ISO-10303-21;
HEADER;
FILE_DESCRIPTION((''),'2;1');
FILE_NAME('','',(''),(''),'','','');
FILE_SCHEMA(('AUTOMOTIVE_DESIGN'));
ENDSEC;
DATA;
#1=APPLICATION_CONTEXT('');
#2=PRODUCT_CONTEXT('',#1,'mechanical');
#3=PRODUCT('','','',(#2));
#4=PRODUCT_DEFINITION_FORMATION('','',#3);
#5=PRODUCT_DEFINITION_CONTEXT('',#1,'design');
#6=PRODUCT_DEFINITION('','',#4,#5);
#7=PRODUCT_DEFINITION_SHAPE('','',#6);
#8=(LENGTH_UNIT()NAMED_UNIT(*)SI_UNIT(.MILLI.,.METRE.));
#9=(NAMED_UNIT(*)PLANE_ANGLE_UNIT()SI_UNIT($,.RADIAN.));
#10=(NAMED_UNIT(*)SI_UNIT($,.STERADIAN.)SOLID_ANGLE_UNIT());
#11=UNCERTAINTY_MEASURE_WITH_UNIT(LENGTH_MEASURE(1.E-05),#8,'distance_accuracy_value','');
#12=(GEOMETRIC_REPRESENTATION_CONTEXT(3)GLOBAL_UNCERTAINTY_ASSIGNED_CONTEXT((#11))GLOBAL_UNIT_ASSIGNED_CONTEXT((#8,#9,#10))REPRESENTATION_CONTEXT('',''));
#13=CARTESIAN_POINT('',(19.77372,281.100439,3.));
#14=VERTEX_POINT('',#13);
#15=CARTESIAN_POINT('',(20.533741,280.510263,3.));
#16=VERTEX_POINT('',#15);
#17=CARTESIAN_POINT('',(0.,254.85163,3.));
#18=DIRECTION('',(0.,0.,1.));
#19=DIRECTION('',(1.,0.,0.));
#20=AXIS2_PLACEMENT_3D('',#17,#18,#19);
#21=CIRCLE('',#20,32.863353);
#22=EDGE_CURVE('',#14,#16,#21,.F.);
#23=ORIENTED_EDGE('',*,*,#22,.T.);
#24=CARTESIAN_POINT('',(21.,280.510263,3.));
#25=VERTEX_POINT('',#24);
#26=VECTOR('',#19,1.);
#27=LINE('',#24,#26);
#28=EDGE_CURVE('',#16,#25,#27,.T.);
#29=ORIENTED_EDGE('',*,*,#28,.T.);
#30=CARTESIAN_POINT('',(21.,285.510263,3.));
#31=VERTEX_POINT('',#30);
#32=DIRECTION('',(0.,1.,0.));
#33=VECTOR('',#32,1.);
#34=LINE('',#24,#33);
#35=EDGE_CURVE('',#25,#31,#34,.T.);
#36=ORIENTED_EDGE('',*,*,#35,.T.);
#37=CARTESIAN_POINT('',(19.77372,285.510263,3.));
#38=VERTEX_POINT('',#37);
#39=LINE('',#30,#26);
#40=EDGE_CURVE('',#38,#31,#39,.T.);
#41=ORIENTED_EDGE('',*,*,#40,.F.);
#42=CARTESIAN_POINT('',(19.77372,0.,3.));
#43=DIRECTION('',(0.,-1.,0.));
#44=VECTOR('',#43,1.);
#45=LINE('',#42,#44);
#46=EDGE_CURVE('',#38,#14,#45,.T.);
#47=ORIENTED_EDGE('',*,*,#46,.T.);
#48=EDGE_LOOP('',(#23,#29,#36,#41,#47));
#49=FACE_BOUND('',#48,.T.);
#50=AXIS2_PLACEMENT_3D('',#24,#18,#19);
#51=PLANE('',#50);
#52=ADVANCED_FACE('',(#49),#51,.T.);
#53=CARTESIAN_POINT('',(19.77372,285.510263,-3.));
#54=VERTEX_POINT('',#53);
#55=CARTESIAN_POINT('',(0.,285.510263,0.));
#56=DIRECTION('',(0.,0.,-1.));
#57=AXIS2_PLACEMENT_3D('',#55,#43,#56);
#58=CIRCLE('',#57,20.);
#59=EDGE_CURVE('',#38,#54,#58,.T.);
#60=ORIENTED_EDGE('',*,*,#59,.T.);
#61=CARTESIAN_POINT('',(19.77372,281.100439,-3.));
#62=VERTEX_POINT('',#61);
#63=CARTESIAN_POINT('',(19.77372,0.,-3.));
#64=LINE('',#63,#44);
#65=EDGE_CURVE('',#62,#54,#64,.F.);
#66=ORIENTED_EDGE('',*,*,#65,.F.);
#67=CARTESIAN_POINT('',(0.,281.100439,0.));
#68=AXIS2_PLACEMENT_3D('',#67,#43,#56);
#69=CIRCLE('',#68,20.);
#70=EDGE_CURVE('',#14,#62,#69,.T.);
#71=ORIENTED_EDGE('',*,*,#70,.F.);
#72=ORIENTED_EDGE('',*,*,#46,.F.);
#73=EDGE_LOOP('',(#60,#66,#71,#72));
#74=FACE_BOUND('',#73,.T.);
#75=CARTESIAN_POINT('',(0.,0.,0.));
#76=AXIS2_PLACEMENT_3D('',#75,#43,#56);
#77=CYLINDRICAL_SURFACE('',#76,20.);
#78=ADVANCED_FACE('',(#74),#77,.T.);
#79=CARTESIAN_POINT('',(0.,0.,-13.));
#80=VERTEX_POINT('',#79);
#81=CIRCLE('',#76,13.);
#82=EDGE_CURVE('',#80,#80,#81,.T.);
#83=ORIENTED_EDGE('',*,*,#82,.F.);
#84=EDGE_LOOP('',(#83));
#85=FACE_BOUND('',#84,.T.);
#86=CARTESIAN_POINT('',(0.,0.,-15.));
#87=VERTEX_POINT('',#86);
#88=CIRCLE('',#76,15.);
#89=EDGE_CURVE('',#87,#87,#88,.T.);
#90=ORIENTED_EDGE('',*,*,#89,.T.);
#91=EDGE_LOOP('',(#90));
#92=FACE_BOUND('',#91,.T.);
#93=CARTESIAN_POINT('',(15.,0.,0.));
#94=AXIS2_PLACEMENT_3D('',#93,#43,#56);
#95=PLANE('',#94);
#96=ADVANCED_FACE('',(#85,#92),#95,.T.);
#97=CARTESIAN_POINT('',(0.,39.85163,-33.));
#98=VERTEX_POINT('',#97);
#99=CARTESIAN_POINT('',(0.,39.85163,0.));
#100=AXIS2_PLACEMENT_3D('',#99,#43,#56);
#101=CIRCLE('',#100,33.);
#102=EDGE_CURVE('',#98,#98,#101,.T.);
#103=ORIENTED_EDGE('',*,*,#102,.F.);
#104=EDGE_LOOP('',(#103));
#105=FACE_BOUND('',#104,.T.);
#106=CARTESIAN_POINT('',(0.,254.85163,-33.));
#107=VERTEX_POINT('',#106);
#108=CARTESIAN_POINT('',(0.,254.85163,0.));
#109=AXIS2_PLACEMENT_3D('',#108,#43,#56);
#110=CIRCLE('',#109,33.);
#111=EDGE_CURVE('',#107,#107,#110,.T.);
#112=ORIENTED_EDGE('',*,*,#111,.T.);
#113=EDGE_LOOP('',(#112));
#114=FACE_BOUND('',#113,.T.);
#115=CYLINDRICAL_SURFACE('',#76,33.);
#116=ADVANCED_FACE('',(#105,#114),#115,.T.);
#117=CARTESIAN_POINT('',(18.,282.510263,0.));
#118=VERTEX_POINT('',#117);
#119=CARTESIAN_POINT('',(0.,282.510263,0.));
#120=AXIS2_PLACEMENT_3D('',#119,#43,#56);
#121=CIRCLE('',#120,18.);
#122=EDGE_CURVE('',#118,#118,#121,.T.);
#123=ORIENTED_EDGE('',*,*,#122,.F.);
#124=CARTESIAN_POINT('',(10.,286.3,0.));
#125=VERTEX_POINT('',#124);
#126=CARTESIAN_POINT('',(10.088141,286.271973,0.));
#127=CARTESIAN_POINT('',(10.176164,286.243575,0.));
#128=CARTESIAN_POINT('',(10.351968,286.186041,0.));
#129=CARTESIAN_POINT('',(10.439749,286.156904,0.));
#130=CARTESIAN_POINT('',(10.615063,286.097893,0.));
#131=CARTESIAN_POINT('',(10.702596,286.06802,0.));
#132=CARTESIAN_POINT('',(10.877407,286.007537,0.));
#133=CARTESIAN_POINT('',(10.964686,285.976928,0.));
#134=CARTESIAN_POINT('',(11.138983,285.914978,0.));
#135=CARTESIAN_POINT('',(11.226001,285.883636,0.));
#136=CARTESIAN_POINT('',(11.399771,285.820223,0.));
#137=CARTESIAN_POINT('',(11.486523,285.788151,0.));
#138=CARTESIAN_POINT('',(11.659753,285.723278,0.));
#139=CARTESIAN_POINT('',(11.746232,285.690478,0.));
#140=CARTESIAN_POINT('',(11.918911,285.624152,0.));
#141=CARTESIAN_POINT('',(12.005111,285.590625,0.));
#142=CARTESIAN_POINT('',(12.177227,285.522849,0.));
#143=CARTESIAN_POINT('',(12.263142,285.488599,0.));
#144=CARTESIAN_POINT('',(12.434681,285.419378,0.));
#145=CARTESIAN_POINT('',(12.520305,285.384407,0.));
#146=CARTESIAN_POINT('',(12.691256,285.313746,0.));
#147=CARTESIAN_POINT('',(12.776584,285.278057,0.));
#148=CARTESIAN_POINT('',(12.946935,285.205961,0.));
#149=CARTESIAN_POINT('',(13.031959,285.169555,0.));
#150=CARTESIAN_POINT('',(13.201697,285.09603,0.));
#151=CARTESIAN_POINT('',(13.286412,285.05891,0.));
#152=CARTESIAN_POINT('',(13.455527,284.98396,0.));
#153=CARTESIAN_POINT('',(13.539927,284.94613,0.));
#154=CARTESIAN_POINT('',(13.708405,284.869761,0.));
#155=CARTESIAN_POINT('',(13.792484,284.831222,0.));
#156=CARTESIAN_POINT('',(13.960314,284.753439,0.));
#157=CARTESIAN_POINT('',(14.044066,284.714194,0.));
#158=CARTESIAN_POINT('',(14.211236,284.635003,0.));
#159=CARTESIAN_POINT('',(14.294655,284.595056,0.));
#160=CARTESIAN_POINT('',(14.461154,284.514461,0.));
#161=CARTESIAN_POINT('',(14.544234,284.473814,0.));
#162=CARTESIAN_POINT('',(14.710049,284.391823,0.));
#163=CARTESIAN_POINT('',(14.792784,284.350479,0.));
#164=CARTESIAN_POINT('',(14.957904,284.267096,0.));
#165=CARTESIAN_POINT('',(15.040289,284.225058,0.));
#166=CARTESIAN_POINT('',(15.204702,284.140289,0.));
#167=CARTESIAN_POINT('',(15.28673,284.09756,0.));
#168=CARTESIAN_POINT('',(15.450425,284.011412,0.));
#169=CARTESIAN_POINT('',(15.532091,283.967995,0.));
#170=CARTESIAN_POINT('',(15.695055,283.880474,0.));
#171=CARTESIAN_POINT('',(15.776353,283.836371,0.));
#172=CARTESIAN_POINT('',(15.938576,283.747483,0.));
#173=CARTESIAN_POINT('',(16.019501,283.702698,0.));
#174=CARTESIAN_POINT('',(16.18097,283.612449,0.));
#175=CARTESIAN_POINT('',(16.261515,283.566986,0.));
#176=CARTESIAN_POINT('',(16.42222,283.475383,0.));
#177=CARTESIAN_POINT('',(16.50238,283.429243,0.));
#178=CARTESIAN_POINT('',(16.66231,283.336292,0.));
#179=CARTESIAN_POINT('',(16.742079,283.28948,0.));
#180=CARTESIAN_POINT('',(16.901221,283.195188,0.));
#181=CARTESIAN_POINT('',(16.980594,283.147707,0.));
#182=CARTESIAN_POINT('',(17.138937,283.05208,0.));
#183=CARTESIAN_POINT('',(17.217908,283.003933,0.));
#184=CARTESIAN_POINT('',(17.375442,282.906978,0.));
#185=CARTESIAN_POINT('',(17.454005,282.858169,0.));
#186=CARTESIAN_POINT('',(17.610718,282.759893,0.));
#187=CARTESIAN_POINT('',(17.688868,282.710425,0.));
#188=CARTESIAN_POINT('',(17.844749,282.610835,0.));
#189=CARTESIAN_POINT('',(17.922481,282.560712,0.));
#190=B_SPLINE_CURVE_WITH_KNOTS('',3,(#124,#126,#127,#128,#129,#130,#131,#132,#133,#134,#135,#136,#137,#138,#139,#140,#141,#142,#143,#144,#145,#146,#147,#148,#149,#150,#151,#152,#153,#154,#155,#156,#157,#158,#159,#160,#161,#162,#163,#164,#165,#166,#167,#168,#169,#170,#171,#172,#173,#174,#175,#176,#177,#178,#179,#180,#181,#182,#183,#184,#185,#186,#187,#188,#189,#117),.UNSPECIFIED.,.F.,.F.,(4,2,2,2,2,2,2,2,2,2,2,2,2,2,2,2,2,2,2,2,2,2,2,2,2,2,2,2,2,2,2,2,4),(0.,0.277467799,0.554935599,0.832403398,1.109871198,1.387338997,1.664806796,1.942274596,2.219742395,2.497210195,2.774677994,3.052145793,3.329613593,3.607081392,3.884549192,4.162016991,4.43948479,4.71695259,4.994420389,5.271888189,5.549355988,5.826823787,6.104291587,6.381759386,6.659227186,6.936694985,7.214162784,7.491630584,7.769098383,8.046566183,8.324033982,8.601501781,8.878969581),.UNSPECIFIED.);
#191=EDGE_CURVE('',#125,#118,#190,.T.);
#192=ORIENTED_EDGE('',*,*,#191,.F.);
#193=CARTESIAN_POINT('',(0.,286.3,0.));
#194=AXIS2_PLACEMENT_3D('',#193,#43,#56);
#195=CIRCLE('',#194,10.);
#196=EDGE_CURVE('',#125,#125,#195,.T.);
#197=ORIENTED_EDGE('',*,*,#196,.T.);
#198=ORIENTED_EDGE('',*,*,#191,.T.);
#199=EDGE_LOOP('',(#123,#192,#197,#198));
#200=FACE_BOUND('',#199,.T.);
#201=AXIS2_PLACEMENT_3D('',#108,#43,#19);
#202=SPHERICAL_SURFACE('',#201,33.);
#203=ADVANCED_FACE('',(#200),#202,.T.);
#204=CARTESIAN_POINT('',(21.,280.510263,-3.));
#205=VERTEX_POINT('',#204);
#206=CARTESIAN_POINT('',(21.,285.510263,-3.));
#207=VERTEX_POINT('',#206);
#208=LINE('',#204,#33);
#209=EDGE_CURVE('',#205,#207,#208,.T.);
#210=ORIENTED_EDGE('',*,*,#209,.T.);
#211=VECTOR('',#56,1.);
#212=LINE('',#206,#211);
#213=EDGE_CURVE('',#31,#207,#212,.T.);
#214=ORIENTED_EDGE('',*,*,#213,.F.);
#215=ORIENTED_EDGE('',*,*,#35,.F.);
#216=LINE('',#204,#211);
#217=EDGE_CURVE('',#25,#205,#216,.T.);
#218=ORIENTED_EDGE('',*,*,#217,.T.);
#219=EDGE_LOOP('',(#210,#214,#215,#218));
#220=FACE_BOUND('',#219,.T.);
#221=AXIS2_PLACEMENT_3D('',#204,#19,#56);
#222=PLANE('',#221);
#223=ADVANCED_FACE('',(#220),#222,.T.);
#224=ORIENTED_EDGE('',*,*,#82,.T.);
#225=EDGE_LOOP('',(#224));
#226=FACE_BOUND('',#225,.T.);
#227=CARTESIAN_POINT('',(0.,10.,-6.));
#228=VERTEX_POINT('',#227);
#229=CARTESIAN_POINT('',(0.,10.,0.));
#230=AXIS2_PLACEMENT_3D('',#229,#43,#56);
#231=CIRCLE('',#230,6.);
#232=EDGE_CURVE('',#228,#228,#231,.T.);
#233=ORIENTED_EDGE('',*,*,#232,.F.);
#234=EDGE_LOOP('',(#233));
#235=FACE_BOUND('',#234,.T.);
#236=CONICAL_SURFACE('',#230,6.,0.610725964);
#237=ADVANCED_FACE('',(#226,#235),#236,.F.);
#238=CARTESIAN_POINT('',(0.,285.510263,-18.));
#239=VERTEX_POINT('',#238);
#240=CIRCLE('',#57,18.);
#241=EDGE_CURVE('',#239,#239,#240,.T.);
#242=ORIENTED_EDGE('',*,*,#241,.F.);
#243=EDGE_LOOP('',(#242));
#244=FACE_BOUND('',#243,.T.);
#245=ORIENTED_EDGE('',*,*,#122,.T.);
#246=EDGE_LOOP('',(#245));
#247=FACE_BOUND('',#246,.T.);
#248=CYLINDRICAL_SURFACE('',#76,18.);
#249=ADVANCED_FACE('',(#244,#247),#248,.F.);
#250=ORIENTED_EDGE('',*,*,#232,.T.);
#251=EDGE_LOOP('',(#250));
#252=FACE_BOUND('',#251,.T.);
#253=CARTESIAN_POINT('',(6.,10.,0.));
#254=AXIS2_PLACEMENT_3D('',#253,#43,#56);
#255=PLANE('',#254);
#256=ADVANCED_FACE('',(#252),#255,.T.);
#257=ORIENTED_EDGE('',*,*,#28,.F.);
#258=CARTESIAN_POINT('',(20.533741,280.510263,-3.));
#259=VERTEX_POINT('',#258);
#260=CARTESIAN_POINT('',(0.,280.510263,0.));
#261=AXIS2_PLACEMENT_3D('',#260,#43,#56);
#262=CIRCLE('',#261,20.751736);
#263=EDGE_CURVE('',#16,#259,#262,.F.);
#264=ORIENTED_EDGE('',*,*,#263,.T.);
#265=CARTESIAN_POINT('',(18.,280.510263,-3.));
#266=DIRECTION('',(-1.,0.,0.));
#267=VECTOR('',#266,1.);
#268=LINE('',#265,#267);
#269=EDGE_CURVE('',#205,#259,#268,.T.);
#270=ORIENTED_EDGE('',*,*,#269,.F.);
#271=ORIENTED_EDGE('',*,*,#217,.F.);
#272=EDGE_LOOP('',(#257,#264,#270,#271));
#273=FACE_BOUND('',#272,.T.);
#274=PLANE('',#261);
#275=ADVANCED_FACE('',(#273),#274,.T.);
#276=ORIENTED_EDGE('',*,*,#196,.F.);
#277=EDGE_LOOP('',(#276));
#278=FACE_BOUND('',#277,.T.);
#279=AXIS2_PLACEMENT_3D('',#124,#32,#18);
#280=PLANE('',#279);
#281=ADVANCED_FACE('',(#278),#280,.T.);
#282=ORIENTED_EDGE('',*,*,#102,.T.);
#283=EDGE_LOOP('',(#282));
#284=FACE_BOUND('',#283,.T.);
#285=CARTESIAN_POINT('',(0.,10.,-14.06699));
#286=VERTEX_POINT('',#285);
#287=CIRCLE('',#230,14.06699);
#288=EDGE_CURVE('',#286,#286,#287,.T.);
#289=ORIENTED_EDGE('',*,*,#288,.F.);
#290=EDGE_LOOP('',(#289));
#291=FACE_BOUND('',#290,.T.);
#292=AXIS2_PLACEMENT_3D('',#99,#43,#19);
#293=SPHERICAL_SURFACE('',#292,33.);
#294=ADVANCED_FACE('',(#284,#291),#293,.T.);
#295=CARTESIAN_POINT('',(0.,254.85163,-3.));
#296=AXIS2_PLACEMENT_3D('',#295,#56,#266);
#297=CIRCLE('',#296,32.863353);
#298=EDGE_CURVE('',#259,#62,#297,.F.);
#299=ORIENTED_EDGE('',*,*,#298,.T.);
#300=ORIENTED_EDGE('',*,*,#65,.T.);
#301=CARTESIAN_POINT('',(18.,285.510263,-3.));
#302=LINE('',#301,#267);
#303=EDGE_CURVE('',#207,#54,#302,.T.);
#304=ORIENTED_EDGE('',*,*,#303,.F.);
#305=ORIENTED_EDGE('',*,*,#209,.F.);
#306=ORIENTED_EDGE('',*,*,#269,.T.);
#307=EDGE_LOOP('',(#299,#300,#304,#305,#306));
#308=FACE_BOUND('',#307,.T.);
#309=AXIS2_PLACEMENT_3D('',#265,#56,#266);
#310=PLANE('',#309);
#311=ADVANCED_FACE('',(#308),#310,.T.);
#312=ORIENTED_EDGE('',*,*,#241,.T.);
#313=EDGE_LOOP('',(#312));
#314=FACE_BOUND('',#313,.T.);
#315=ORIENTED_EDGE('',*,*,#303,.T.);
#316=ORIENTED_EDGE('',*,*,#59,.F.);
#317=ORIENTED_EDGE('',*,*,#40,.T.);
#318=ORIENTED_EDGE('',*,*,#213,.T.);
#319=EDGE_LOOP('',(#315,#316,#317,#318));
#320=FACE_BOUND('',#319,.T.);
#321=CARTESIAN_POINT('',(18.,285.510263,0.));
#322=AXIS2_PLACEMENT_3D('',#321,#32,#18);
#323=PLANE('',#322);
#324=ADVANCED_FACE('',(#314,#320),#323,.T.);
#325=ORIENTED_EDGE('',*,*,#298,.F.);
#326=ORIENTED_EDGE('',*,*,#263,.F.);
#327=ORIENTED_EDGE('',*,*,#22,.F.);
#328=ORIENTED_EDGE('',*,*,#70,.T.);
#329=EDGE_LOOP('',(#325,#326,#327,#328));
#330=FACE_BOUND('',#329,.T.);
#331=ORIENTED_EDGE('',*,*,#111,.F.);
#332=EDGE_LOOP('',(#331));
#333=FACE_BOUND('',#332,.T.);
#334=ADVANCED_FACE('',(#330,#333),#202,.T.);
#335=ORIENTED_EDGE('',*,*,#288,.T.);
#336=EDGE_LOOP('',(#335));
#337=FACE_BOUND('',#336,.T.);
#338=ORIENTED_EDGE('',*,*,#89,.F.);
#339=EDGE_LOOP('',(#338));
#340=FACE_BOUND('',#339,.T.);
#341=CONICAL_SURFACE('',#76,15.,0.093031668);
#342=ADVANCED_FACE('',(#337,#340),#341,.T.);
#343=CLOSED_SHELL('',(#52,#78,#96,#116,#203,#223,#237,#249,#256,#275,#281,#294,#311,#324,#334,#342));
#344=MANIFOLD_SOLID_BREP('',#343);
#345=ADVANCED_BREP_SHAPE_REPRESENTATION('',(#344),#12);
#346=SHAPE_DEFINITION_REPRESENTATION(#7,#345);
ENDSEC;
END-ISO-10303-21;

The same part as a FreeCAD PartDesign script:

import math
import FreeCAD as App
import Part
import Sketcher

V = App.Vector


def add_polygon(sketch, points):
    """Adds a closed chain of lines whose ends are joined by coincident constraints."""
    first, n = sketch.GeometryCount, len(points)
    for a, b in zip(points, points[1:] + points[:1]):
        sketch.addGeometry(Part.LineSegment(App.Vector(*a, 0), App.Vector(*b, 0)), False)
    for i in range(n):
        sketch.addConstraint(Sketcher.Constraint("Coincident", first + i, 2, first + (i + 1) % n, 1))

doc = App.newDocument("Part")
body = doc.addObject("PartDesign::Body", "Body")

sketch1 = body.newObject("Sketcher::SketchObject", "Sketch")
sketch1.AttachmentSupport = (doc.getObject("XY_Plane"), [""])
sketch1.MapMode = "FlatFace"
sketch1.addGeometry([
    Part.LineSegment(V(13, 0, 0), V(15, 0, 0)),
    Part.LineSegment(V(15, 0, 0), V(14.1, 10, 0)),
    Part.ArcOfCircle(Part.Circle(V(0, 39.9, 0), V(0, 0, 1), 33), math.radians(-65), math.radians(0)),
    Part.LineSegment(V(33, 39.9, 0), V(33, 254.9, 0)),
    Part.ArcOfCircle(Part.Circle(V(0, 254.9, 0), V(0, 0, 1), 33), math.radians(0), math.radians(53)),
    Part.LineSegment(V(20, 281.1, 0), V(20, 285.5, 0)),
    Part.LineSegment(V(20, 285.5, 0), V(18, 285.5, 0)),
    Part.LineSegment(V(18, 285.5, 0), V(18, 282.5, 0)),
    Part.ArcOfCircle(Part.Circle(V(0, 254.9, 0), V(0, 0, 1), 33), math.radians(56.94), math.radians(72.36)),
    Part.LineSegment(V(10, 286.3, 0), V(0, 286.3, 0)),
    Part.LineSegment(V(0, 286.3, 0), V(0, 10, 0)),
    Part.LineSegment(V(0, 10, 0), V(6, 10, 0)),
    Part.LineSegment(V(6, 10, 0), V(13, 0, 0)),
], False)
sketch1.addConstraint([
    Sketcher.Constraint("Coincident", 0, 2, 1, 1),
    Sketcher.Constraint("Coincident", 1, 2, 2, 1),
    Sketcher.Constraint("Tangent", 2, 2, 3, 1),
    Sketcher.Constraint("Tangent", 3, 2, 4, 1),
    Sketcher.Constraint("Coincident", 4, 2, 5, 1),
    Sketcher.Constraint("Coincident", 5, 2, 6, 1),
    Sketcher.Constraint("Coincident", 6, 2, 7, 1),
    Sketcher.Constraint("Coincident", 7, 2, 8, 1),
    Sketcher.Constraint("Coincident", 8, 2, 9, 1),
    Sketcher.Constraint("Coincident", 9, 2, 10, 1),
    Sketcher.Constraint("Coincident", 10, 2, 11, 1),
    Sketcher.Constraint("Coincident", 11, 2, 12, 1),
    Sketcher.Constraint("Coincident", 12, 2, 0, 1),
    Sketcher.Constraint("Horizontal", 0),
    Sketcher.Constraint("Vertical", 3),
    Sketcher.Constraint("Vertical", 5),
    Sketcher.Constraint("Horizontal", 6),
    Sketcher.Constraint("Vertical", 7),
    Sketcher.Constraint("Horizontal", 9),
    Sketcher.Constraint("Vertical", 10),
    Sketcher.Constraint("Horizontal", 11),
    Sketcher.Constraint("Coincident", 8, 3, 4, 3),
    Sketcher.Constraint("Equal", 2, 4),
    Sketcher.Constraint("Equal", 4, 8),
    Sketcher.Constraint("PointOnObject", 2, 3, -2),
    Sketcher.Constraint("PointOnObject", 0, 2, -1),
    Sketcher.Constraint("PointOnObject", 9, 2, -2),
    Sketcher.Constraint("Horizontal", 1, 2, 10, 2),
    Sketcher.Constraint("Equal", 0, 6),
    Sketcher.Constraint("Radius", 2, 33.0),
    Sketcher.Constraint("DistanceX", 0, 1, 0, 2, 2.0),
    Sketcher.Constraint("DistanceX", 9, 2, 9, 1, 10.0),
    Sketcher.Constraint("DistanceX", 11, 1, 11, 2, 6.0),
    Sketcher.Constraint("DistanceY", 3, 1, 3, 2, 215.0),
    Sketcher.Constraint("DistanceY", 7, 2, 7, 1, 3.0),
    Sketcher.Constraint("DistanceY", 10, 2, 10, 1, 276.3),
    Sketcher.Constraint("DistanceX", -1, 1, 0, 2, 15.0),
    Sketcher.Constraint("DistanceY", -1, 1, 1, 2, 10.0),
    Sketcher.Constraint("DistanceX", -1, 1, 4, 2, 20.0),
])
revolution = body.newObject("PartDesign::Revolution", "Revolution")
revolution.Profile = sketch1
revolution.ReferenceAxis = (sketch1, ["V_Axis"])
revolution.Angle = 360

sketch2 = body.newObject("Sketcher::SketchObject", "Sketch001")
sketch2.AttachmentSupport = (doc.getObject("XZ_Plane"), [""])
sketch2.MapMode = "FlatFace"
sketch2.AttachmentOffset = App.Placement(V(0, 0, -285.510263), App.Rotation())
add_polygon(sketch2, [(18, -3), (18, 3), (21, 3), (21, -3)])
sketch2.addConstraint([
    Sketcher.Constraint("Vertical", 0),
    Sketcher.Constraint("Horizontal", 1),
    Sketcher.Constraint("Vertical", 2),
    Sketcher.Constraint("Horizontal", 3),
    Sketcher.Constraint("DistanceX", 1, 1, 1, 2, 3.0),
    Sketcher.Constraint("DistanceY", 0, 1, 0, 2, 6.0),
    Sketcher.Constraint("DistanceX", -1, 1, 0, 2, 18.0),
    Sketcher.Constraint("DistanceY", -1, 1, 0, 2, 3.0),
])
pad1 = body.newObject("PartDesign::Pad", "Pad")
pad1.Profile = sketch2
pad1.Length = 5

doc.recompute()
